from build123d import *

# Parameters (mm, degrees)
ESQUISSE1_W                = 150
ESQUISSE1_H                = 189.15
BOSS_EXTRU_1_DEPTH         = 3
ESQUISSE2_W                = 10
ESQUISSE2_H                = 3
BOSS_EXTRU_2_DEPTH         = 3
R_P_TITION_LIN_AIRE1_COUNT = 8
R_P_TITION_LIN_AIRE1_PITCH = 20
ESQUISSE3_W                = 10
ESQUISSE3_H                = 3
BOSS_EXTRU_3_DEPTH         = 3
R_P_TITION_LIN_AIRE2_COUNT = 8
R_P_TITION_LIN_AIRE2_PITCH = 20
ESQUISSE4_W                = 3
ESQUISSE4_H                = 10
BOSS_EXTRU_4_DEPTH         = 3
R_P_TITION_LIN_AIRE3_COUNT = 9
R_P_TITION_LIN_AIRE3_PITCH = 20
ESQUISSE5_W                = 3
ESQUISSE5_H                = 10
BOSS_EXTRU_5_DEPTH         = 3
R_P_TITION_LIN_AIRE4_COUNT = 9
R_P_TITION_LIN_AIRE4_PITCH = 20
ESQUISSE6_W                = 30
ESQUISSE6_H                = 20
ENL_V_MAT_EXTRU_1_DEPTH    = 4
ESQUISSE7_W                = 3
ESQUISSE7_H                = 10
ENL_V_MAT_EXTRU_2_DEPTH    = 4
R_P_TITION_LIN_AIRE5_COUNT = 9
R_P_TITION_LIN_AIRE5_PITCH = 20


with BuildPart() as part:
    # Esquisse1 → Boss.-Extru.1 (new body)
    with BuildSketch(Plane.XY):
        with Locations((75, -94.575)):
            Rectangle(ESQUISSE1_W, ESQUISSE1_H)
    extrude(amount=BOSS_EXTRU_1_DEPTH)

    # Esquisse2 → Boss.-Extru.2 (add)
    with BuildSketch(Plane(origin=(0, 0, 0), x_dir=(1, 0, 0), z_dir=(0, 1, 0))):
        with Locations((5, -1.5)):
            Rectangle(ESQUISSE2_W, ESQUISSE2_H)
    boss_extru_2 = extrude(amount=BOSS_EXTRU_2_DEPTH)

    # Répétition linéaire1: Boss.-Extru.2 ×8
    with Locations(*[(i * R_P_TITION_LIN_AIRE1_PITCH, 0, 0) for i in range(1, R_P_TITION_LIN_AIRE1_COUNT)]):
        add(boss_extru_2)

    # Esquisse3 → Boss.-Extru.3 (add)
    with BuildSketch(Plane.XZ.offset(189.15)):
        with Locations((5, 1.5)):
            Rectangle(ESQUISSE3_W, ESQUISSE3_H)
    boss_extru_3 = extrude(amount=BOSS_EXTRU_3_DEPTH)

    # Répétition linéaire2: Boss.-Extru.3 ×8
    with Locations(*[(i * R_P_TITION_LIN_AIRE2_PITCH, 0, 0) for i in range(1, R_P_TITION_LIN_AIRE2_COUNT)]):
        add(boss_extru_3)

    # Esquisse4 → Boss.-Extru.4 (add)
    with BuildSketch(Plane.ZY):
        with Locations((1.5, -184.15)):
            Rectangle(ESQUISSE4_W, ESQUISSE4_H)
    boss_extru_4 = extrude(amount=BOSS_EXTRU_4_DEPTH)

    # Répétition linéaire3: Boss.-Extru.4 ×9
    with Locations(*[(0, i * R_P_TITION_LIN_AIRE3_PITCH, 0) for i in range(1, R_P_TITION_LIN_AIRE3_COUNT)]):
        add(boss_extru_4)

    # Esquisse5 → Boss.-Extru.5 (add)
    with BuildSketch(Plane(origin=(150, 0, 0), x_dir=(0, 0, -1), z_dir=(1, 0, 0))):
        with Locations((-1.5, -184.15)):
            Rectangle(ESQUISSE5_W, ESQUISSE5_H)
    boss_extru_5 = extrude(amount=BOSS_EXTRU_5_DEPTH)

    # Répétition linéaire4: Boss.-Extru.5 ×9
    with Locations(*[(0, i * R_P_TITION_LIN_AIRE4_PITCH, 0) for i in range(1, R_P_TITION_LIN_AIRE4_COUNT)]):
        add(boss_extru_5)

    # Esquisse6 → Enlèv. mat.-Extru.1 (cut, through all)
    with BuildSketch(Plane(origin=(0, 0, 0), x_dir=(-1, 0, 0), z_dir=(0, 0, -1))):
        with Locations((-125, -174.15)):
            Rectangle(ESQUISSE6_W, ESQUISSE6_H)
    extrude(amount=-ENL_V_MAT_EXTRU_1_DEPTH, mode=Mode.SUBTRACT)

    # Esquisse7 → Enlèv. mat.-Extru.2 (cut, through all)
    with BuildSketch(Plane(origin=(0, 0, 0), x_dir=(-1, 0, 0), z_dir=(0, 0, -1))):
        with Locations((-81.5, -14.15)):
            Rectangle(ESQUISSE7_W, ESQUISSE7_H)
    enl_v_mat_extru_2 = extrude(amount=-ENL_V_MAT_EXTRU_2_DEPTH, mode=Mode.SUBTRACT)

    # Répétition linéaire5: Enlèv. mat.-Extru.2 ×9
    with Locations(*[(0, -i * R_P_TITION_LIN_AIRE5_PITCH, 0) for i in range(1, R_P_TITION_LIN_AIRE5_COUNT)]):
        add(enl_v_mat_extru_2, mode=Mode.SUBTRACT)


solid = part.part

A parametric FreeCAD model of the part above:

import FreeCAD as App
import Part
import Sketcher
from FreeCAD import Vector
Q = App.Units.Quantity

doc = App.newDocument("Part")
params = doc.addObject("Spreadsheet::Sheet", "Params")
for row, (alias, value) in enumerate([
    ("sketch1_width", "150 mm"),
    ("sketch1_height", "189.15 mm"),
    ("pad1_length", "3 mm"),
    ("sketch2_width", "10 mm"),
    ("sketch2_height", "3 mm"),
    ("pad2_length", "3 mm"),
    ("linearpattern_pitch", "20 mm"),
    ("sketch3_width", "10 mm"),
    ("sketch3_height", "3 mm"),
    ("pad3_length", "3 mm"),
    ("linearpattern2_pitch", "20 mm"),
    ("sketch4_width", "10 mm"),
    ("sketch4_height", "3 mm"),
    ("pad4_length", "3 mm"),
    ("linearpattern3_pitch", "20 mm"),
    ("sketch5_width", "10 mm"),
    ("sketch5_height", "3 mm"),
    ("pad5_length", "3 mm"),
    ("linearpattern4_pitch", "20 mm"),
    ("sketch6_width", "30 mm"),
    ("sketch6_height", "20 mm"),
    ("sketch7_width", "3 mm"),
    ("sketch7_height", "10 mm"),
    ("linearpattern5_pitch", "20 mm"),
], start=1):
    params.set(f"A{row}", alias)
    params.set(f"B{row}", "=" + value)
    params.setAlias(f"B{row}", alias)

body = doc.addObject("PartDesign::Body", "Body")

sketch1 = doc.addObject("Sketcher::SketchObject", "Sketch")
body.addObject(sketch1)
sketch1.AttachmentSupport = (doc.XY_Plane, [""])
sketch1.MapMode = "FlatFace"
sketch1.addGeometry([
    Part.LineSegment(Vector(0, 0, 0), Vector(0, -189.15, 0)),
    Part.LineSegment(Vector(0, -189.15, 0), Vector(150, -189.15, 0)),
    Part.LineSegment(Vector(150, -189.15, 0), Vector(150, 0, 0)),
    Part.LineSegment(Vector(150, 0, 0), Vector(0, 0, 0)),
], False)
sketch1.addConstraint([
    Sketcher.Constraint("Coincident", 0, 2, 1, 1),
    Sketcher.Constraint("Coincident", 1, 2, 2, 1),
    Sketcher.Constraint("Coincident", 2, 2, 3, 1),
    Sketcher.Constraint("Coincident", 3, 2, 0, 1),
    Sketcher.Constraint("Vertical", 0),
    Sketcher.Constraint("Horizontal", 1),
    Sketcher.Constraint("Vertical", 2),
    Sketcher.Constraint("Horizontal", 3),
    Sketcher.Constraint("Coincident", 3, 2, -1, 1),
    Sketcher.Constraint("DistanceX", 1, 1, 1, 2, Q("150 mm")),
    Sketcher.Constraint("DistanceY", 0, 2, 0, 1, Q("189.15 mm")),
])
sketch1.setExpression("Constraints[9]", "Params.sketch1_width")
sketch1.setExpression("Constraints[10]", "Params.sketch1_height")
pad1 = doc.addObject("PartDesign::Pad", "Pad")
body.addObject(pad1)
pad1.Profile = sketch1
pad1.setExpression("Length", "Params.pad1_length")

sketch2 = doc.addObject("Sketcher::SketchObject", "Sketch001")
body.addObject(sketch2)
sketch2.AttachmentSupport = (doc.XZ_Plane, [""])
sketch2.MapMode = "FlatFace"
sketch2.addGeometry([
    Part.LineSegment(Vector(0, 0, 0), Vector(0, 3, 0)),
    Part.LineSegment(Vector(0, 3, 0), Vector(10, 3, 0)),
    Part.LineSegment(Vector(10, 3, 0), Vector(10, 0, 0)),
    Part.LineSegment(Vector(10, 0, 0), Vector(0, 0, 0)),
], False)
sketch2.addConstraint([
    Sketcher.Constraint("Coincident", 0, 2, 1, 1),
    Sketcher.Constraint("Coincident", 1, 2, 2, 1),
    Sketcher.Constraint("Coincident", 2, 2, 3, 1),
    Sketcher.Constraint("Coincident", 3, 2, 0, 1),
    Sketcher.Constraint("Vertical", 0),
    Sketcher.Constraint("Horizontal", 1),
    Sketcher.Constraint("Vertical", 2),
    Sketcher.Constraint("Horizontal", 3),
    Sketcher.Constraint("Coincident", 3, 2, -1, 1),
    Sketcher.Constraint("DistanceX", 1, 1, 1, 2, Q("10 mm")),
    Sketcher.Constraint("DistanceY", 0, 1, 0, 2, Q("3 mm")),
])
sketch2.setExpression("Constraints[9]", "Params.sketch2_width")
sketch2.setExpression("Constraints[10]", "Params.sketch2_height")
pad2 = doc.addObject("PartDesign::Pad", "Pad001")
body.addObject(pad2)
pad2.Profile = sketch2
pad2.setExpression("Length", "Params.pad2_length")
pad2.Reversed = True
doc.recompute()

linearpattern = doc.addObject("PartDesign::LinearPattern", "LinearPattern")
body.addObject(linearpattern)
linearpattern.Originals = [pad2]
linearpattern.Direction = (doc.X_Axis, [""])
linearpattern.Mode = "offset"
linearpattern.setExpression("Offset", "Params.linearpattern_pitch")
linearpattern.Occurrences = 8
body.Tip = linearpattern

sketch3 = doc.addObject("Sketcher::SketchObject", "Sketch002")
body.addObject(sketch3)
sketch3.AttachmentSupport = (doc.XZ_Plane, [""])
sketch3.MapMode = "FlatFace"
sketch3.AttachmentOffset = App.Placement(Vector(0, 0, 189.15), App.Rotation())
sketch3.addGeometry([
    Part.LineSegment(Vector(0, 3, 0), Vector(0, 0, 0)),
    Part.LineSegment(Vector(0, 0, 0), Vector(10, 0, 0)),
    Part.LineSegment(Vector(10, 0, 0), Vector(10, 3, 0)),
    Part.LineSegment(Vector(10, 3, 0), Vector(0, 3, 0)),
], False)
sketch3.addConstraint([
    Sketcher.Constraint("Coincident", 0, 2, 1, 1),
    Sketcher.Constraint("Coincident", 1, 2, 2, 1),
    Sketcher.Constraint("Coincident", 2, 2, 3, 1),
    Sketcher.Constraint("Coincident", 3, 2, 0, 1),
    Sketcher.Constraint("Vertical", 0),
    Sketcher.Constraint("Horizontal", 1),
    Sketcher.Constraint("Vertical", 2),
    Sketcher.Constraint("Horizontal", 3),
    Sketcher.Constraint("Coincident", 0, 2, -1, 1),
    Sketcher.Constraint("DistanceX", 1, 1, 1, 2, Q("10 mm")),
    Sketcher.Constraint("DistanceY", 0, 2, 0, 1, Q("3 mm")),
])
sketch3.setExpression("Constraints[9]", "Params.sketch3_width")
sketch3.setExpression("Constraints[10]", "Params.sketch3_height")
pad3 = doc.addObject("PartDesign::Pad", "Pad002")
body.addObject(pad3)
pad3.Profile = sketch3
pad3.setExpression("Length", "Params.pad3_length")
doc.recompute()

linearpattern2 = doc.addObject("PartDesign::LinearPattern", "LinearPattern001")
body.addObject(linearpattern2)
linearpattern2.Originals = [pad3]
linearpattern2.Direction = (doc.X_Axis, [""])
linearpattern2.Mode = "offset"
linearpattern2.setExpression("Offset", "Params.linearpattern2_pitch")
linearpattern2.Occurrences = 8
body.Tip = linearpattern2

sketch4 = doc.addObject("Sketcher::SketchObject", "Sketch003")
body.addObject(sketch4)
sketch4.AttachmentSupport = (doc.YZ_Plane, [""])
sketch4.MapMode = "FlatFace"
sketch4.addGeometry([
    Part.LineSegment(Vector(-179.15, 0, 0), Vector(-189.15, 0, 0)),
    Part.LineSegment(Vector(-189.15, 0, 0), Vector(-189.15, 3, 0)),
    Part.LineSegment(Vector(-189.15, 3, 0), Vector(-179.15, 3, 0)),
    Part.LineSegment(Vector(-179.15, 3, 0), Vector(-179.15, 0, 0)),
], False)
sketch4.addConstraint([
    Sketcher.Constraint("Coincident", 0, 2, 1, 1),
    Sketcher.Constraint("Coincident", 1, 2, 2, 1),
    Sketcher.Constraint("Coincident", 2, 2, 3, 1),
    Sketcher.Constraint("Coincident", 3, 2, 0, 1),
    Sketcher.Constraint("Horizontal", 0),
    Sketcher.Constraint("Vertical", 1),
    Sketcher.Constraint("Horizontal", 2),
    Sketcher.Constraint("Vertical", 3),
    Sketcher.Constraint("PointOnObject", 0, 2, -1),
    Sketcher.Constraint("DistanceX", 0, 2, 0, 1, Q("10 mm")),
    Sketcher.Constraint("DistanceY", 1, 1, 1, 2, Q("3 mm")),
    Sketcher.Constraint("DistanceX", 0, 2, -1, 1, Q("189.15 mm")),
])
sketch4.setExpression("Constraints[9]", "Params.sketch4_width")
sketch4.setExpression("Constraints[10]", "Params.sketch4_height")
pad4 = doc.addObject("PartDesign::Pad", "Pad003")
body.addObject(pad4)
pad4.Profile = sketch4
pad4.setExpression("Length", "Params.pad4_length")
pad4.Reversed = True
doc.recompute()

linearpattern3 = doc.addObject("PartDesign::LinearPattern", "LinearPattern002")
body.addObject(linearpattern3)
linearpattern3.Originals = [pad4]
linearpattern3.Direction = (doc.Y_Axis, [""])
linearpattern3.Mode = "offset"
linearpattern3.setExpression("Offset", "Params.linearpattern3_pitch")
linearpattern3.Occurrences = 9
body.Tip = linearpattern3

sketch5 = doc.addObject("Sketcher::SketchObject", "Sketch004")
body.addObject(sketch5)
sketch5.AttachmentSupport = (doc.YZ_Plane, [""])
sketch5.MapMode = "FlatFace"
sketch5.AttachmentOffset = App.Placement(Vector(0, 0, 150), App.Rotation())
sketch5.addGeometry([
    Part.LineSegment(Vector(-179.15, 3, 0), Vector(-189.15, 3, 0)),
    Part.LineSegment(Vector(-189.15, 3, 0), Vector(-189.15, 0, 0)),
    Part.LineSegment(Vector(-189.15, 0, 0), Vector(-179.15, 0, 0)),
    Part.LineSegment(Vector(-179.15, 0, 0), Vector(-179.15, 3, 0)),
], False)
sketch5.addConstraint([
    Sketcher.Constraint("Coincident", 0, 2, 1, 1),
    Sketcher.Constraint("Coincident", 1, 2, 2, 1),
    Sketcher.Constraint("Coincident", 2, 2, 3, 1),
    Sketcher.Constraint("Coincident", 3, 2, 0, 1),
    Sketcher.Constraint("Horizontal", 0),
    Sketcher.Constraint("Vertical", 1),
    Sketcher.Constraint("Horizontal", 2),
    Sketcher.Constraint("Vertical", 3),
    Sketcher.Constraint("PointOnObject", 1, 2, -1),
    Sketcher.Constraint("DistanceX", 0, 2, 0, 1, Q("10 mm")),
    Sketcher.Constraint("DistanceY", 1, 2, 1, 1, Q("3 mm")),
    Sketcher.Constraint("DistanceX", 0, 2, -1, 1, Q("189.15 mm")),
])
sketch5.setExpression("Constraints[9]", "Params.sketch5_width")
sketch5.setExpression("Constraints[10]", "Params.sketch5_height")
pad5 = doc.addObject("PartDesign::Pad", "Pad004")
body.addObject(pad5)
pad5.Profile = sketch5
pad5.setExpression("Length", "Params.pad5_length")
doc.recompute()

linearpattern4 = doc.addObject("PartDesign::LinearPattern", "LinearPattern003")
body.addObject(linearpattern4)
linearpattern4.Originals = [pad5]
linearpattern4.Direction = (doc.Y_Axis, [""])
linearpattern4.Mode = "offset"
linearpattern4.setExpression("Offset", "Params.linearpattern4_pitch")
linearpattern4.Occurrences = 9
body.Tip = linearpattern4

sketch6 = doc.addObject("Sketcher::SketchObject", "Sketch005")
body.addObject(sketch6)
sketch6.AttachmentSupport = (doc.XY_Plane, [""])
sketch6.MapMode = "FlatFace"
sketch6.addGeometry([
    Part.LineSegment(Vector(140, -164.15, 0), Vector(140, -184.15, 0)),
    Part.LineSegment(Vector(140, -184.15, 0), Vector(110, -184.15, 0)),
    Part.LineSegment(Vector(110, -184.15, 0), Vector(110, -164.15, 0)),
    Part.LineSegment(Vector(110, -164.15, 0), Vector(140, -164.15, 0)),
], False)
sketch6.addConstraint([
    Sketcher.Constraint("Coincident", 0, 2, 1, 1),
    Sketcher.Constraint("Coincident", 1, 2, 2, 1),
    Sketcher.Constraint("Coincident", 2, 2, 3, 1),
    Sketcher.Constraint("Coincident", 3, 2, 0, 1),
    Sketcher.Constraint("Vertical", 0),
    Sketcher.Constraint("Horizontal", 1),
    Sketcher.Constraint("Vertical", 2),
    Sketcher.Constraint("Horizontal", 3),
    Sketcher.Constraint("DistanceX", 1, 2, 1, 1, Q("30 mm")),
    Sketcher.Constraint("DistanceY", 0, 2, 0, 1, Q("20 mm")),
    Sketcher.Constraint("DistanceX", -1, 1, 0, 2, Q("140 mm")),
    Sketcher.Constraint("DistanceY", 0, 2, -1, 1, Q("184.15 mm")),
])
sketch6.setExpression("Constraints[8]", "Params.sketch6_width")
sketch6.setExpression("Constraints[9]", "Params.sketch6_height")
pocket1 = doc.addObject("PartDesign::Pocket", "Pocket")
body.addObject(pocket1)
pocket1.Profile = sketch6
pocket1.Type = "ThroughAll"
pocket1.Reversed = True

sketch7 = doc.addObject("Sketcher::SketchObject", "Sketch006")
body.addObject(sketch7)
sketch7.AttachmentSupport = (doc.XY_Plane, [""])
sketch7.MapMode = "FlatFace"
sketch7.addGeometry([
    Part.LineSegment(Vector(83, -9.15, 0), Vector(83, -19.15, 0)),
    Part.LineSegment(Vector(83, -19.15, 0), Vector(80, -19.15, 0)),
    Part.LineSegment(Vector(80, -19.15, 0), Vector(80, -9.15, 0)),
    Part.LineSegment(Vector(80, -9.15, 0), Vector(83, -9.15, 0)),
], False)
sketch7.addConstraint([
    Sketcher.Constraint("Coincident", 0, 2, 1, 1),
    Sketcher.Constraint("Coincident", 1, 2, 2, 1),
    Sketcher.Constraint("Coincident", 2, 2, 3, 1),
    Sketcher.Constraint("Coincident", 3, 2, 0, 1),
    Sketcher.Constraint("Vertical", 0),
    Sketcher.Constraint("Horizontal", 1),
    Sketcher.Constraint("Vertical", 2),
    Sketcher.Constraint("Horizontal", 3),
    Sketcher.Constraint("DistanceX", 1, 2, 1, 1, Q("3 mm")),
    Sketcher.Constraint("DistanceY", 0, 2, 0, 1, Q("10 mm")),
    Sketcher.Constraint("DistanceX", -1, 1, 0, 2, Q("83 mm")),
    Sketcher.Constraint("DistanceY", 0, 2, -1, 1, Q("19.15 mm")),
])
sketch7.setExpression("Constraints[8]", "Params.sketch7_width")
sketch7.setExpression("Constraints[9]", "Params.sketch7_height")
pocket2 = doc.addObject("PartDesign::Pocket", "Pocket001")
body.addObject(pocket2)
pocket2.Profile = sketch7
pocket2.Type = "ThroughAll"
pocket2.Reversed = True
doc.recompute()

linearpattern5 = doc.addObject("PartDesign::LinearPattern", "LinearPattern004")
body.addObject(linearpattern5)
linearpattern5.Originals = [pocket2]
linearpattern5.Direction = (doc.Y_Axis, [""])
linearpattern5.Mode = "offset"
linearpattern5.setExpression("Offset", "Params.linearpattern5_pitch")
linearpattern5.Occurrences = 9
linearpattern5.Reversed = True
body.Tip = linearpattern5

doc.recompute()
